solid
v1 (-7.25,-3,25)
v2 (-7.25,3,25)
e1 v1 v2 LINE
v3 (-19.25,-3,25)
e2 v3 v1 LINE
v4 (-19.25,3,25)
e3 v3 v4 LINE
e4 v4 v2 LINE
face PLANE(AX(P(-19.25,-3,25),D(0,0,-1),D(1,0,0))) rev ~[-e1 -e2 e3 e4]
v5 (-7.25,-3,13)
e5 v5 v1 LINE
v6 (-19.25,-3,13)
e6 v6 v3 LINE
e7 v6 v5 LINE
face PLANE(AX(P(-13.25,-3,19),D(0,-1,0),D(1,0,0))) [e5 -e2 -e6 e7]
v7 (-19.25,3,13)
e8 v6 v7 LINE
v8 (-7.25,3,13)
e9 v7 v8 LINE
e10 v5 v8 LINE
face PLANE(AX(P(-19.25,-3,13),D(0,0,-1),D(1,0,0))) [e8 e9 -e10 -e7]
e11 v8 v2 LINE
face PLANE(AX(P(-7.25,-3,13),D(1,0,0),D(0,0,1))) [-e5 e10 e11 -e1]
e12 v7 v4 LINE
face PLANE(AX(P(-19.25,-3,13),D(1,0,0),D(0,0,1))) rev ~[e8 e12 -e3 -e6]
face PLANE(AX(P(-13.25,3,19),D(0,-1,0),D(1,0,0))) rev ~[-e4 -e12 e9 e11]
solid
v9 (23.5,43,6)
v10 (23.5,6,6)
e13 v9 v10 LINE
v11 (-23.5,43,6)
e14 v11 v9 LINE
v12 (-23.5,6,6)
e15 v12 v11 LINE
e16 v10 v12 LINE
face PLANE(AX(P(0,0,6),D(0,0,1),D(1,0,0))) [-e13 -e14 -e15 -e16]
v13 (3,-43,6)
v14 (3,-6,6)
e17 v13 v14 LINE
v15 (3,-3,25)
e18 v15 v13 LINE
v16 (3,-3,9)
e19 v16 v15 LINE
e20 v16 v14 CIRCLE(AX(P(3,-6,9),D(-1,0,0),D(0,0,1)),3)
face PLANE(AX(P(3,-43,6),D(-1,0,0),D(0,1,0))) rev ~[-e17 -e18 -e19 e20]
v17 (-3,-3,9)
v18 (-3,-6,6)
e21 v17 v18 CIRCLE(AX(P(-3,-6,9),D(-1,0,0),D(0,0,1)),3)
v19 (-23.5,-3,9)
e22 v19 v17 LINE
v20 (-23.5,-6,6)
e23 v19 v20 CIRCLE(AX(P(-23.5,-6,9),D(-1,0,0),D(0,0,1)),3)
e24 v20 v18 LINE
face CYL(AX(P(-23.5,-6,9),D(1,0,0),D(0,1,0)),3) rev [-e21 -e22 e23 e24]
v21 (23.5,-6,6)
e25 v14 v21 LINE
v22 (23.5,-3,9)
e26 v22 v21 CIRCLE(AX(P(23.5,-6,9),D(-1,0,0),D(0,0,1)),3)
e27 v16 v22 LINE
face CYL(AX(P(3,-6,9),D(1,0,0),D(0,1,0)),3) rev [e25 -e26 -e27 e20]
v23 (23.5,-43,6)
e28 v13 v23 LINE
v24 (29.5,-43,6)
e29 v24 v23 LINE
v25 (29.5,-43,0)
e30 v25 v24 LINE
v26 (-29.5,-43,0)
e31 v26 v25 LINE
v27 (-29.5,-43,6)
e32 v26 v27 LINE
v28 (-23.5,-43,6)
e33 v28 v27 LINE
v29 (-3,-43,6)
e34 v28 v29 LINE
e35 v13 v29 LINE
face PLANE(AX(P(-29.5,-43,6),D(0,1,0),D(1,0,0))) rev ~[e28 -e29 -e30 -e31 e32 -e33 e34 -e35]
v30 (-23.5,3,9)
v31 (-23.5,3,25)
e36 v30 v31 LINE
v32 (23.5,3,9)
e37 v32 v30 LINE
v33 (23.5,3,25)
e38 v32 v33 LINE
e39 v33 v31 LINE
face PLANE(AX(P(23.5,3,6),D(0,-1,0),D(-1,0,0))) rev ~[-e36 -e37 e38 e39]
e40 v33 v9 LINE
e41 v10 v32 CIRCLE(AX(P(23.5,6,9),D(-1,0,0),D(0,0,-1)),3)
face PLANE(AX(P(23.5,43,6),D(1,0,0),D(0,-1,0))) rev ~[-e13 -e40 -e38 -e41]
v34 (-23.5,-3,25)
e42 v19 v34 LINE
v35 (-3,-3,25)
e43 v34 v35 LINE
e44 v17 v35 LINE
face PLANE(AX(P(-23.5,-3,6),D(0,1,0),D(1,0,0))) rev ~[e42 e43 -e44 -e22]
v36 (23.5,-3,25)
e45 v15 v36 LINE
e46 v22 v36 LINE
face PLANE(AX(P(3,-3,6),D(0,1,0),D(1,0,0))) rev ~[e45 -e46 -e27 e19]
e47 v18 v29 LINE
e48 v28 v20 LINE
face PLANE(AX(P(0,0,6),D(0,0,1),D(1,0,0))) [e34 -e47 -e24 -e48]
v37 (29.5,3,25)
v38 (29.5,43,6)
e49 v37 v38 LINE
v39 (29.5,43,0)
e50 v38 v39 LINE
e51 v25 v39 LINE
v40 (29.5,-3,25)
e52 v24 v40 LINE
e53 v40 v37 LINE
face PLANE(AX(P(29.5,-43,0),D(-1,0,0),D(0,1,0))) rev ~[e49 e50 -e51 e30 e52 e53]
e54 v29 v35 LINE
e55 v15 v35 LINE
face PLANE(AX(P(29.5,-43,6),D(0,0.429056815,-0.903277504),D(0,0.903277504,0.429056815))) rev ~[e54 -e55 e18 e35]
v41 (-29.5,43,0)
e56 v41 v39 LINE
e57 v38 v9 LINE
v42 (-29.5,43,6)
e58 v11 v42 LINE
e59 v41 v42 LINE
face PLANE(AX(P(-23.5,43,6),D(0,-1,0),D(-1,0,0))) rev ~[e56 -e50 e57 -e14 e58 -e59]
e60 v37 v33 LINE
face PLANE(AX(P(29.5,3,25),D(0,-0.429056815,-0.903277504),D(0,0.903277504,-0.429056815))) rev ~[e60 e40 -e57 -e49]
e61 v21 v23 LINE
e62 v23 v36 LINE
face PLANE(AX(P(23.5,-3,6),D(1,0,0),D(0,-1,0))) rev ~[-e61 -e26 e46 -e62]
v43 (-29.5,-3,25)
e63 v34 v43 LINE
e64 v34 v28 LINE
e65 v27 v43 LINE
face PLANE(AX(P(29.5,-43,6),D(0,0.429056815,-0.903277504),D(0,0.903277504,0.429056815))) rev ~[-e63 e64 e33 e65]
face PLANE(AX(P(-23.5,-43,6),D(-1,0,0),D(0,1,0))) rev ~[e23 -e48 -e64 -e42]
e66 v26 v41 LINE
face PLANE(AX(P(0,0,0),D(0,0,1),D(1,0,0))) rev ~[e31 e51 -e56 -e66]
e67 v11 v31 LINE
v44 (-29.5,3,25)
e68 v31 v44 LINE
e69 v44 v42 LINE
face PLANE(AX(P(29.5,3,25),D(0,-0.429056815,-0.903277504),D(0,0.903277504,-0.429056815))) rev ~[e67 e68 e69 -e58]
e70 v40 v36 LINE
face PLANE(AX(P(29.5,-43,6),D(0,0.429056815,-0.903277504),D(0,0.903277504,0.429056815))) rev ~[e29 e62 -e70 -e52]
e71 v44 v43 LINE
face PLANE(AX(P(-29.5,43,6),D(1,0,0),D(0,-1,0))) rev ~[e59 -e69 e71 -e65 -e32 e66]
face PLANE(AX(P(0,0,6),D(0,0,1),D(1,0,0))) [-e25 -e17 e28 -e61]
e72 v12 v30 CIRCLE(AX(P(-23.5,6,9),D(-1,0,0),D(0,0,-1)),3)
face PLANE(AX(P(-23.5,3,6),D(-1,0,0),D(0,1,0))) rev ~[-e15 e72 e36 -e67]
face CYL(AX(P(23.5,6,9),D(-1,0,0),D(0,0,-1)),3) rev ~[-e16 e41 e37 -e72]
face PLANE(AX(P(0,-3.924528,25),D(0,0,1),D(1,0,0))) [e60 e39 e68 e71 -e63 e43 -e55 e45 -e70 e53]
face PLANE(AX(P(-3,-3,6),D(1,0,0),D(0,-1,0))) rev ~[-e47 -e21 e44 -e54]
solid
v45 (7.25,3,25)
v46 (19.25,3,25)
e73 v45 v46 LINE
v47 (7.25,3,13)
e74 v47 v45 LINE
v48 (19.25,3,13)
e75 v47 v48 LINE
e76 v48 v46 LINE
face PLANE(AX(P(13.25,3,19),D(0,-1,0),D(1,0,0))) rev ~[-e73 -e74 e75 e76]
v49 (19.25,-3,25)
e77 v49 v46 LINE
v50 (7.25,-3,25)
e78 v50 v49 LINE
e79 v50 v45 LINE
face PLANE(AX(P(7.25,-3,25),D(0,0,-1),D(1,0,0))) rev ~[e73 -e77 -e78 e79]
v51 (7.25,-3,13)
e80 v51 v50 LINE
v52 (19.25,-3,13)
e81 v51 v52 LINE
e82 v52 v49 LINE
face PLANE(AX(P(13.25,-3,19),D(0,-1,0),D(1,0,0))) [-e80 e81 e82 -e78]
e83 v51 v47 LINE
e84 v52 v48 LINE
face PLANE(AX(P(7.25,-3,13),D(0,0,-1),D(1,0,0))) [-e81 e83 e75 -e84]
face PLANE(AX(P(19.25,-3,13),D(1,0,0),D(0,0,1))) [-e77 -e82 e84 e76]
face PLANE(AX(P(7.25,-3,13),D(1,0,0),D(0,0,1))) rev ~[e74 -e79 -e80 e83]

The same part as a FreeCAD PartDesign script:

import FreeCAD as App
import Part
import Sketcher
from FreeCAD import Vector


def edges_at(feature, points):
    """Names of the edges that pass closest to the given points."""
    edges = feature.Shape.Edges
    near = lambda p: min(range(len(edges)), key=lambda i: edges[i].distToShape(Part.Vertex(*p))[0])
    return sorted({f"Edge{near(p) + 1}" for p in points})

doc = App.newDocument("Part")
body = doc.addObject("PartDesign::Body", "Body")

# Sketch on XY plane
sketch1 = doc.addObject("Sketcher::SketchObject", "Sketch")
body.addObject(sketch1)
sketch1.AttachmentSupport = (doc.XY_Plane, [""])
sketch1.MapMode = "FlatFace"
sketch1.addGeometry(Part.LineSegment(Vector(-29.5, 43, 0), Vector(-29.5, -43, 0)), False)
sketch1.addGeometry(Part.LineSegment(Vector(-29.5, -43, 0), Vector(29.5, -43, 0)), False)
sketch1.addGeometry(Part.LineSegment(Vector(29.5, -43, 0), Vector(29.5, 43, 0)), False)
sketch1.addGeometry(Part.LineSegment(Vector(29.5, 43, 0), Vector(-29.5, 43, 0)), False)
sketch1.addConstraint(Sketcher.Constraint("Coincident", 0, 2, 1, 1))
sketch1.addConstraint(Sketcher.Constraint("Coincident", 1, 2, 2, 1))
sketch1.addConstraint(Sketcher.Constraint("Coincident", 2, 2, 3, 1))
sketch1.addConstraint(Sketcher.Constraint("Coincident", 3, 2, 0, 1))
sketch1.addConstraint(Sketcher.Constraint("Vertical", 0))
sketch1.addConstraint(Sketcher.Constraint("Horizontal", 1))
sketch1.addConstraint(Sketcher.Constraint("Vertical", 2))
sketch1.addConstraint(Sketcher.Constraint("Horizontal", 3))
sketch1.addConstraint(Sketcher.Constraint("Symmetric", 0, 2, 2, 2, -1, 1))
sketch1.addConstraint(Sketcher.Constraint("DistanceX", 1, 1, 1, 2, 59.0))
sketch1.addConstraint(Sketcher.Constraint("DistanceY", 0, 2, 0, 1, 86.0))
pad1 = doc.addObject("PartDesign::Pad", "Pad")
body.addObject(pad1)
pad1.Profile = sketch1
pad1.Length = 6

# Sketch on XY plane
sketch2 = doc.addObject("Sketcher::SketchObject", "Sketch001")
body.addObject(sketch2)
sketch2.AttachmentSupport = (doc.XY_Plane, [""])
sketch2.MapMode = "FlatFace"
sketch2.AttachmentOffset = App.Placement(Vector(0, 0, 6), App.Rotation())
sketch2.addGeometry(Part.LineSegment(Vector(-23.5, 43, 0), Vector(-29.5, 43, 0)), False)
sketch2.addGeometry(Part.LineSegment(Vector(-29.5, 43, 0), Vector(-29.5, -43, 0)), False)
sketch2.addGeometry(Part.LineSegment(Vector(-29.5, -43, 0), Vector(-23.5, -43, 0)), False)
sketch2.addGeometry(Part.LineSegment(Vector(-23.5, -43, 0), Vector(-23.5, -3, 0)), False)
sketch2.addGeometry(Part.LineSegment(Vector(-23.5, -3, 0), Vector(-3, -3, 0)), False)
sketch2.addGeometry(Part.LineSegment(Vector(-3, -3, 0), Vector(-3, -43, 0)), False)
sketch2.addGeometry(Part.LineSegment(Vector(-3, -43, 0), Vector(3, -43, 0)), False)
sketch2.addGeometry(Part.LineSegment(Vector(3, -43, 0), Vector(3, -3, 0)), False)
sketch2.addGeometry(Part.LineSegment(Vector(3, -3, 0), Vector(23.5, -3, 0)), False)
sketch2.addGeometry(Part.LineSegment(Vector(23.5, -3, 0), Vector(23.5, -43, 0)), False)
sketch2.addGeometry(Part.LineSegment(Vector(23.5, -43, 0), Vector(29.5, -43, 0)), False)
sketch2.addGeometry(Part.LineSegment(Vector(29.5, -43, 0), Vector(29.5, 43, 0)), False)
sketch2.addGeometry(Part.LineSegment(Vector(29.5, 43, 0), Vector(23.5, 43, 0)), False)
sketch2.addGeometry(Part.LineSegment(Vector(23.5, 43, 0), Vector(23.5, 3, 0)), False)
sketch2.addGeometry(Part.LineSegment(Vector(23.5, 3, 0), Vector(-23.5, 3, 0)), False)
sketch2.addGeometry(Part.LineSegment(Vector(-23.5, 3, 0), Vector(-23.5, 43, 0)), False)
sketch2.addConstraint(Sketcher.Constraint("Coincident", 0, 2, 1, 1))
sketch2.addConstraint(Sketcher.Constraint("Coincident", 1, 2, 2, 1))
sketch2.addConstraint(Sketcher.Constraint("Coincident", 2, 2, 3, 1))
sketch2.addConstraint(Sketcher.Constraint("Coincident", 3, 2, 4, 1))
sketch2.addConstraint(Sketcher.Constraint("Coincident", 4, 2, 5, 1))
sketch2.addConstraint(Sketcher.Constraint("Coincident", 5, 2, 6, 1))
sketch2.addConstraint(Sketcher.Constraint("Coincident", 6, 2, 7, 1))
sketch2.addConstraint(Sketcher.Constraint("Coincident", 7, 2, 8, 1))
sketch2.addConstraint(Sketcher.Constraint("Coincident", 8, 2, 9, 1))
sketch2.addConstraint(Sketcher.Constraint("Coincident", 9, 2, 10, 1))
sketch2.addConstraint(Sketcher.Constraint("Coincident", 10, 2, 11, 1))
sketch2.addConstraint(Sketcher.Constraint("Coincident", 11, 2, 12, 1))
sketch2.addConstraint(Sketcher.Constraint("Coincident", 12, 2, 13, 1))
sketch2.addConstraint(Sketcher.Constraint("Coincident", 13, 2, 14, 1))
sketch2.addConstraint(Sketcher.Constraint("Coincident", 14, 2, 15, 1))
sketch2.addConstraint(Sketcher.Constraint("Coincident", 15, 2, 0, 1))
sketch2.addConstraint(Sketcher.Constraint("Horizontal", 0))
sketch2.addConstraint(Sketcher.Constraint("Vertical", 1))
sketch2.addConstraint(Sketcher.Constraint("Horizontal", 2))
sketch2.addConstraint(Sketcher.Constraint("Vertical", 3))
sketch2.addConstraint(Sketcher.Constraint("Horizontal", 4))
sketch2.addConstraint(Sketcher.Constraint("Vertical", 5))
sketch2.addConstraint(Sketcher.Constraint("Horizontal", 6))
sketch2.addConstraint(Sketcher.Constraint("Vertical", 7))
sketch2.addConstraint(Sketcher.Constraint("Horizontal", 8))
sketch2.addConstraint(Sketcher.Constraint("Vertical", 9))
sketch2.addConstraint(Sketcher.Constraint("Horizontal", 10))
sketch2.addConstraint(Sketcher.Constraint("Vertical", 11))
sketch2.addConstraint(Sketcher.Constraint("Horizontal", 12))
sketch2.addConstraint(Sketcher.Constraint("Vertical", 13))
sketch2.addConstraint(Sketcher.Constraint("Horizontal", 14))
sketch2.addConstraint(Sketcher.Constraint("Vertical", 15))
sketch2.addConstraint(Sketcher.Constraint("Symmetric", 0, 2, 10, 2, -1, 1))
sketch2.addConstraint(Sketcher.Constraint("Symmetric", 2, 2, 12, 2, -1, 1))
sketch2.addConstraint(Sketcher.Constraint("Symmetric", 8, 2, 14, 2, -1, 1))
sketch2.addConstraint(Sketcher.Constraint("Symmetric", 4, 2, 7, 2, -2))
sketch2.addConstraint(Sketcher.Constraint("Symmetric", 2, 2, 9, 2, -2))
sketch2.addConstraint(Sketcher.Constraint("Horizontal", 2, 2, 5, 2))
sketch2.addConstraint(Sketcher.Constraint("Equal", 2, 6))
sketch2.addConstraint(Sketcher.Constraint("DistanceX", 0, 2, 0, 1, 6.0))
sketch2.addConstraint(Sketcher.Constraint("DistanceX", 14, 2, 14, 1, 47.0))
sketch2.addConstraint(Sketcher.Constraint("DistanceY", 1, 2, 1, 1, 86.0))
sketch2.addConstraint(Sketcher.Constraint("DistanceY", 3, 1, 3, 2, 40.0))
pad2 = doc.addObject("PartDesign::Pad", "Pad001")
body.addObject(pad2)
pad2.Profile = sketch2
pad2.Length = 19

# Sketch on YZ plane
sketch3 = doc.addObject("Sketcher::SketchObject", "Sketch002")
body.addObject(sketch3)
sketch3.AttachmentSupport = (doc.YZ_Plane, [""])
sketch3.MapMode = "FlatFace"
sketch3.AttachmentOffset = App.Placement(Vector(0, 0, 29.5), App.Rotation())
sketch3.addGeometry(Part.LineSegment(Vector(-43, 25, 0), Vector(-43, 6, 0)), False)
sketch3.addGeometry(Part.LineSegment(Vector(-43, 6, 0), Vector(-3, 25, 0)), False)
sketch3.addGeometry(Part.LineSegment(Vector(-3, 25, 0), Vector(-43, 25, 0)), False)
sketch3.addGeometry(Part.LineSegment(Vector(43, 25, 0), Vector(3, 25, 0)), False)
sketch3.addGeometry(Part.LineSegment(Vector(3, 25, 0), Vector(43, 6, 0)), False)
sketch3.addGeometry(Part.LineSegment(Vector(43, 6, 0), Vector(43, 25, 0)), False)
sketch3.addConstraint(Sketcher.Constraint("Coincident", 0, 2, 1, 1))
sketch3.addConstraint(Sketcher.Constraint("Coincident", 1, 2, 2, 1))
sketch3.addConstraint(Sketcher.Constraint("Coincident", 2, 2, 0, 1))
sketch3.addConstraint(Sketcher.Constraint("Coincident", 3, 2, 4, 1))
sketch3.addConstraint(Sketcher.Constraint("Coincident", 4, 2, 5, 1))
sketch3.addConstraint(Sketcher.Constraint("Coincident", 5, 2, 3, 1))
sketch3.addConstraint(Sketcher.Constraint("Vertical", 0))
sketch3.addConstraint(Sketcher.Constraint("Horizontal", 2))
sketch3.addConstraint(Sketcher.Constraint("Horizontal", 3))
sketch3.addConstraint(Sketcher.Constraint("Vertical", 5))
sketch3.addConstraint(Sketcher.Constraint("Symmetric", 1, 2, 3, 2, -2))
sketch3.addConstraint(Sketcher.Constraint("Symmetric", 0, 2, 4, 2, -2))
sketch3.addConstraint(Sketcher.Constraint("DistanceX", 2, 2, 2, 1, 40.0))
sketch3.addConstraint(Sketcher.Constraint("DistanceY", 0, 2, 0, 1, 19.0))
sketch3.addConstraint(Sketcher.Constraint("DistanceX", 0, 2, -1, 1, 43.0))
sketch3.addConstraint(Sketcher.Constraint("DistanceY", -1, 1, 0, 2, 6.0))
pocket1 = doc.addObject("PartDesign::Pocket", "Pocket")
body.addObject(pocket1)
pocket1.Profile = sketch3
pocket1.Type = "ThroughAll"
doc.recompute()

fillet = doc.addObject("PartDesign::Fillet", "Fillet")
body.addObject(fillet)
fillet.Base = (pocket1, edges_at(pocket1, [(-13.25, -3, 6), (13.25, -3, 6), (0, 3, 6)]))
fillet.Radius = 3
body2 = doc.addObject("PartDesign::Body", "Body001")
body2.AllowCompound = True

# Sketch on XZ plane
sketch4 = doc.addObject("Sketcher::SketchObject", "Sketch003")
body2.addObject(sketch4)
sketch4.AttachmentSupport = (doc.getObject("XZ_Plane001"), [""])
sketch4.MapMode = "FlatFace"
sketch4.AttachmentOffset = App.Placement(Vector(0, 0, 3), App.Rotation())
sketch4.addGeometry(Part.LineSegment(Vector(-19.25, 25, 0), Vector(-19.25, 13, 0)), False)
sketch4.addGeometry(Part.LineSegment(Vector(-19.25, 13, 0), Vector(-7.25, 13, 0)), False)
sketch4.addGeometry(Part.LineSegment(Vector(-7.25, 13, 0), Vector(-7.25, 25, 0)), False)
sketch4.addGeometry(Part.LineSegment(Vector(-7.25, 25, 0), Vector(-19.25, 25, 0)), False)
sketch4.addGeometry(Part.LineSegment(Vector(7.25, 25, 0), Vector(7.25, 13, 0)), False)
sketch4.addGeometry(Part.LineSegment(Vector(7.25, 13, 0), Vector(19.25, 13, 0)), False)
sketch4.addGeometry(Part.LineSegment(Vector(19.25, 13, 0), Vector(19.25, 25, 0)), False)
sketch4.addGeometry(Part.LineSegment(Vector(19.25, 25, 0), Vector(7.25, 25, 0)), False)
sketch4.addConstraint(Sketcher.Constraint("Coincident", 0, 2, 1, 1))
sketch4.addConstraint(Sketcher.Constraint("Coincident", 1, 2, 2, 1))
sketch4.addConstraint(Sketcher.Constraint("Coincident", 2, 2, 3, 1))
sketch4.addConstraint(Sketcher.Constraint("Coincident", 3, 2, 0, 1))
sketch4.addConstraint(Sketcher.Constraint("Coincident", 4, 2, 5, 1))
sketch4.addConstraint(Sketcher.Constraint("Coincident", 5, 2, 6, 1))
sketch4.addConstraint(Sketcher.Constraint("Coincident", 6, 2, 7, 1))
sketch4.addConstraint(Sketcher.Constraint("Coincident", 7, 2, 4, 1))
sketch4.addConstraint(Sketcher.Constraint("Vertical", 0))
sketch4.addConstraint(Sketcher.Constraint("Horizontal", 1))
sketch4.addConstraint(Sketcher.Constraint("Vertical", 2))
sketch4.addConstraint(Sketcher.Constraint("Horizontal", 3))
sketch4.addConstraint(Sketcher.Constraint("Vertical", 4))
sketch4.addConstraint(Sketcher.Constraint("Horizontal", 5))
sketch4.addConstraint(Sketcher.Constraint("Vertical", 6))
sketch4.addConstraint(Sketcher.Constraint("Horizontal", 7))
sketch4.addConstraint(Sketcher.Constraint("Symmetric", 1, 2, 4, 2, -2))
sketch4.addConstraint(Sketcher.Constraint("Symmetric", 3, 2, 6, 2, -2))
sketch4.addConstraint(Sketcher.Constraint("Equal", 7, 0))
sketch4.addConstraint(Sketcher.Constraint("DistanceX", 1, 1, 1, 2, 12.0))
sketch4.addConstraint(Sketcher.Constraint("DistanceY", -1, 1, 0, 2, 13.0))
sketch4.addConstraint(Sketcher.Constraint("DistanceX", 1, 2, 4, 2, 14.5))
pad3 = doc.addObject("PartDesign::Pad", "Pad002")
body2.addObject(pad3)
pad3.Profile = sketch4
pad3.Length = 6
pad3.Reversed = True

doc.recompute()
